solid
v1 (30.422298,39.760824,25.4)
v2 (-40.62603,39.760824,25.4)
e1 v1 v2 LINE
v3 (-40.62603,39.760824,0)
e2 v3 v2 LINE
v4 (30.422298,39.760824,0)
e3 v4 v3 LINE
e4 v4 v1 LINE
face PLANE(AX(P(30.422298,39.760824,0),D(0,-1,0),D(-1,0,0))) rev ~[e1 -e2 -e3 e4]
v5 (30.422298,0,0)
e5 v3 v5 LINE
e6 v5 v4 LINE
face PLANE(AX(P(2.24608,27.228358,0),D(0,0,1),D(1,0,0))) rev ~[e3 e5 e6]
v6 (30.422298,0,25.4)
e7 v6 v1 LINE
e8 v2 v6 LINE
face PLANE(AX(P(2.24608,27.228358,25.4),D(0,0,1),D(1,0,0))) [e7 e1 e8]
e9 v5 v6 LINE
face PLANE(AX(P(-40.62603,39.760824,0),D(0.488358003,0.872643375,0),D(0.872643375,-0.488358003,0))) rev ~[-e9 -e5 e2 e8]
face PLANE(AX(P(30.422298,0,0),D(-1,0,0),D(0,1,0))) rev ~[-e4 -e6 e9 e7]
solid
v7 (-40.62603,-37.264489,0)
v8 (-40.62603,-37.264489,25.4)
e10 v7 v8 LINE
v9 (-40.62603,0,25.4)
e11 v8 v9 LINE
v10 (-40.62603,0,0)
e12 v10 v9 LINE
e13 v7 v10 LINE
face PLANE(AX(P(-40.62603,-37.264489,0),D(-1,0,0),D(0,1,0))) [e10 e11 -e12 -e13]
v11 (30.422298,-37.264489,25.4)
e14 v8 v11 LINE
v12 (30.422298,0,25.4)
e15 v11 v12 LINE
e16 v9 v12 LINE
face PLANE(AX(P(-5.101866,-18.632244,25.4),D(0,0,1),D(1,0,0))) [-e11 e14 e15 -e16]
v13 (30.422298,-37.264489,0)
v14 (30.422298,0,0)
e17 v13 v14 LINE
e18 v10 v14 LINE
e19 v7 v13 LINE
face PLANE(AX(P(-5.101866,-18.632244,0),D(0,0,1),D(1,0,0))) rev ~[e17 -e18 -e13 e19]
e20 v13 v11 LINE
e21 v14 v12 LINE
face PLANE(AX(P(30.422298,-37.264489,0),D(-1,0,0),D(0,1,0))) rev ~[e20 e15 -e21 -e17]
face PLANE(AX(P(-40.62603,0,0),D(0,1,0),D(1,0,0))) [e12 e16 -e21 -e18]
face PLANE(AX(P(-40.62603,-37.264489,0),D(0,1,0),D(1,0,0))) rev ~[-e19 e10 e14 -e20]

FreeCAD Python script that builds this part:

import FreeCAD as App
import Part
import Sketcher
Q = App.Units.Quantity


def add_polygon(sketch, points):
    """Adds a closed chain of lines whose ends are joined by coincident constraints."""
    first, n = sketch.GeometryCount, len(points)
    for a, b in zip(points, points[1:] + points[:1]):
        sketch.addGeometry(Part.LineSegment(App.Vector(*a, 0), App.Vector(*b, 0)), False)
    for i in range(n):
        sketch.addConstraint(Sketcher.Constraint("Coincident", first + i, 2, first + (i + 1) % n, 1))

doc = App.newDocument("Part")
body = doc.addObject("PartDesign::Body", "Body")

# Sketch on XY plane
sketch1 = doc.addObject("Sketcher::SketchObject", "Sketch")
body.addObject(sketch1)
sketch1.AttachmentSupport = (doc.XY_Plane, [""])
sketch1.MapMode = "FlatFace"
add_polygon(sketch1, [(-41, 0), (-41, -37), (30, -37), (30, 0)])  # lines 0-3
sketch1.addConstraint([
    Sketcher.Constraint("Vertical", 0),
    Sketcher.Constraint("Horizontal", 1),
    Sketcher.Constraint("Vertical", 2),
    Sketcher.Constraint("Horizontal", 3),
    Sketcher.Constraint("PointOnObject", 2, 2, -1),
    Sketcher.Constraint("DistanceX", 1, 1, 1, 2, 71.048329),
    Sketcher.Constraint("DistanceY", 0, 2, 0, 1, 37.264489),
    Sketcher.Constraint("DistanceX", -1, 1, 1, 2, 30.422298),
])
pad1 = doc.addObject("PartDesign::Pad", "Pad")
body.addObject(pad1)
pad1.Profile = sketch1
pad1.Length = Q("1 in")
body2 = doc.addObject("PartDesign::Body", "Body001")

# Sketch on XY plane
sketch2 = doc.addObject("Sketcher::SketchObject", "Sketch001")
body2.addObject(sketch2)
sketch2.AttachmentSupport = (doc.getObject("XY_Plane001"), [""])
sketch2.MapMode = "FlatFace"
add_polygon(sketch2, [(-41, 40), (30, 0), (30, 40)])  # lines 0-2
sketch2.addConstraint([
    Sketcher.Constraint("Vertical", 1),
    Sketcher.Constraint("Horizontal", 2),
    Sketcher.Constraint("PointOnObject", 0, 2, -1),
    Sketcher.Constraint("DistanceX", 2, 2, 2, 1, 71.048329),
    Sketcher.Constraint("DistanceX", -1, 1, 0, 2, 30.422298),
    Sketcher.Constraint("Distance", 0, 81.41737),
])
pad2 = doc.addObject("PartDesign::Pad", "Pad001")
body2.addObject(pad2)
pad2.Profile = sketch2
pad2.Length = Q("1 in")

doc.recompute()
